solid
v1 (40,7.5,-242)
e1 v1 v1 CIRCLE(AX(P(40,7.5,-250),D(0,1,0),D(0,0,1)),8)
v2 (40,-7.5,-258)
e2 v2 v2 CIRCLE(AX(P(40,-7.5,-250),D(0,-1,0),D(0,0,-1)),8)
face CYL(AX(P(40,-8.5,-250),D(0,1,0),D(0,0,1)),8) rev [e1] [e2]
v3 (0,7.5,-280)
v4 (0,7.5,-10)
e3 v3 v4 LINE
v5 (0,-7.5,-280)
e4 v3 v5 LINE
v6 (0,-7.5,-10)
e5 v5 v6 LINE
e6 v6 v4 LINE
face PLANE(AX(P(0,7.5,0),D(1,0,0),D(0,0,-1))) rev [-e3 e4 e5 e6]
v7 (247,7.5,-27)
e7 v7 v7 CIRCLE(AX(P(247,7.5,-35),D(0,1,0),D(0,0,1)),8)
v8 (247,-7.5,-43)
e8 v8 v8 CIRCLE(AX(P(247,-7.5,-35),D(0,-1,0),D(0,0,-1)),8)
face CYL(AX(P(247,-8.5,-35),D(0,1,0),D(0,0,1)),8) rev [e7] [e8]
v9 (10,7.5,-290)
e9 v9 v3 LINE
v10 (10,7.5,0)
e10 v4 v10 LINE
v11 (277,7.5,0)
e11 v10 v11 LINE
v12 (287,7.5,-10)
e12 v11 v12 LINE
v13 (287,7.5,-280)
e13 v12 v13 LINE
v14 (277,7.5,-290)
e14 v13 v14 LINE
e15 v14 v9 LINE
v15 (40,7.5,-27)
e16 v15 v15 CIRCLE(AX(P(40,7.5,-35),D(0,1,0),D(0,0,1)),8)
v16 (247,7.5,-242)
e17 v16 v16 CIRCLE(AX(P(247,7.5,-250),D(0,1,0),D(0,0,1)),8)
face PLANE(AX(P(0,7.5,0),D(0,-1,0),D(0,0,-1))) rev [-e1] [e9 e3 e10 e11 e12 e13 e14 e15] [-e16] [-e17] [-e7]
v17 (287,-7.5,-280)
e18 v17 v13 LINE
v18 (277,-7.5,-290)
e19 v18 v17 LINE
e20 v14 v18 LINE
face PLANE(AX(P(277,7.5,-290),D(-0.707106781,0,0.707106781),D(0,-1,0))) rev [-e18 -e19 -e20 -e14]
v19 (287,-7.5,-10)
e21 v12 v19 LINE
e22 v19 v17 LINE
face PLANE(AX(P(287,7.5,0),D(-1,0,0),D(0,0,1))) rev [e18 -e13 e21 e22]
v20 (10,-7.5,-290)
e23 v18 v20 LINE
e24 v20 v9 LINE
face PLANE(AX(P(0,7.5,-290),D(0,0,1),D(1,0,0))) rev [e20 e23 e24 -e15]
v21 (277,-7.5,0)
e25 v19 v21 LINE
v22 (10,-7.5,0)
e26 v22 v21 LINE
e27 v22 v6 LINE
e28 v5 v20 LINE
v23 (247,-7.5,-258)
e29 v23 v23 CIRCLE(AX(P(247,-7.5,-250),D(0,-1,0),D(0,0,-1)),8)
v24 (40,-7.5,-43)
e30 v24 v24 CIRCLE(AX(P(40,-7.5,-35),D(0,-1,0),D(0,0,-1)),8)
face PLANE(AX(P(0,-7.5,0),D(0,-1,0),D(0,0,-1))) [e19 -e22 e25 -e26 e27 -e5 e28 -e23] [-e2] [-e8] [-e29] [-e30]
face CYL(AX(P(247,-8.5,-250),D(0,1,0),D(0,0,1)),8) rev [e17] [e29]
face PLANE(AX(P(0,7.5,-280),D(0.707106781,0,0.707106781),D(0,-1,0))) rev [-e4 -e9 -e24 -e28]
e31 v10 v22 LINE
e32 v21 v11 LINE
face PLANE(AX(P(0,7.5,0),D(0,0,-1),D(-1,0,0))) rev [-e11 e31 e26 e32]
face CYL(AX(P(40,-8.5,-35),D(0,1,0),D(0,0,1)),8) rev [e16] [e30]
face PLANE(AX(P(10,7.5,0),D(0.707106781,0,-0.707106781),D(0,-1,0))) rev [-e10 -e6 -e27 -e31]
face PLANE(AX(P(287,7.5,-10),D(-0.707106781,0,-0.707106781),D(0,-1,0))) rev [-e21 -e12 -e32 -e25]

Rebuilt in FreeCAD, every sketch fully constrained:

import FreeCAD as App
import Part
import Sketcher
Q = App.Units.Quantity


def edges_at(feature, points):
    """Names of the edges that pass closest to the given points."""
    edges = feature.Shape.Edges
    near = lambda p: min(range(len(edges)), key=lambda i: edges[i].distToShape(Part.Vertex(*p))[0])
    return sorted({f"Edge{near(p) + 1}" for p in points})


def add_polygon(sketch, points):
    """Adds a closed chain of lines whose ends are joined by coincident constraints."""
    first, n = sketch.GeometryCount, len(points)
    for a, b in zip(points, points[1:] + points[:1]):
        sketch.addGeometry(Part.LineSegment(App.Vector(*a, 0), App.Vector(*b, 0)), False)
    for i in range(n):
        sketch.addConstraint(Sketcher.Constraint("Coincident", first + i, 2, first + (i + 1) % n, 1))

doc = App.newDocument("Part")
body = doc.addObject("PartDesign::Body", "Body")

# Sketch on XZ plane
sketch1 = body.newObject("Sketcher::SketchObject", "Sketch")
sketch1.AttachmentSupport = (doc.getObject("XZ_Plane"), [""])
sketch1.MapMode = "FlatFace"
add_polygon(sketch1, [(0, -290), (0, 0), (287, 0), (287, -290)])  # lines 0-3
sketch1.addConstraint([
    Sketcher.Constraint("Vertical", 0),
    Sketcher.Constraint("Horizontal", 1),
    Sketcher.Constraint("Vertical", 2),
    Sketcher.Constraint("Horizontal", 3),
    Sketcher.Constraint("Coincident", 0, 2, -1, 1),
    Sketcher.Constraint("DistanceX", 1, 1, 1, 2, Q("287 mm")),
    Sketcher.Constraint("DistanceY", 0, 1, 0, 2, Q("290 mm")),
])
pad1 = body.newObject("PartDesign::Pad", "Pad")
pad1.Profile = sketch1
pad1.Length = 15
pad1.Midplane = True
doc.recompute()

chamfer = body.newObject("PartDesign::Chamfer", "Chamfer")
chamfer.Base = (pad1, edges_at(pad1, [
    (0, 0, -290),
    (287, 0, -290),
    (287, 0, 0),
    (0, 0, 0),
]))
chamfer.Size = 10

# Sketch on XZ plane
sketch2 = body.newObject("Sketcher::SketchObject", "Sketch001")
sketch2.AttachmentSupport = (doc.getObject("XZ_Plane"), [""])
sketch2.MapMode = "FlatFace"
sketch2.AttachmentOffset = App.Placement(App.Vector(0, 0, -7.5), App.Rotation())
sketch2.addGeometry([
    Part.Circle(App.Vector(40, -35, 0), App.Vector(0, 0, 1), 8),
    Part.Circle(App.Vector(40, -250, 0), App.Vector(0, 0, 1), 8),
    Part.Circle(App.Vector(247, -250, 0), App.Vector(0, 0, 1), 8),
    Part.Circle(App.Vector(247, -35, 0), App.Vector(0, 0, 1), 8),
], False)
sketch2.addConstraint([
    Sketcher.Constraint("Equal", 0, 1),
    Sketcher.Constraint("Equal", 1, 2),
    Sketcher.Constraint("Equal", 2, 3),
    Sketcher.Constraint("Horizontal", 1, 3, 2, 3),
    Sketcher.Constraint("Horizontal", 0, 3, 3, 3),
    Sketcher.Constraint("Vertical", 0, 3, 1, 3),
    Sketcher.Constraint("Vertical", 2, 3, 3, 3),
    Sketcher.Constraint("Diameter", 0, Q("16 mm")),
    Sketcher.Constraint("DistanceX", -1, 1, 0, 3, Q("40 mm")),
    Sketcher.Constraint("DistanceY", 0, 3, -1, 1, Q("35 mm")),
    Sketcher.Constraint("DistanceY", 1, 3, -1, 1, Q("250 mm")),
    Sketcher.Constraint("DistanceX", -1, 1, 2, 3, Q("247 mm")),
])
pocket1 = body.newObject("PartDesign::Pocket", "Pocket")
pocket1.Profile = sketch2
pocket1.Length = 16
pocket1.Reversed = True

doc.recompute()
